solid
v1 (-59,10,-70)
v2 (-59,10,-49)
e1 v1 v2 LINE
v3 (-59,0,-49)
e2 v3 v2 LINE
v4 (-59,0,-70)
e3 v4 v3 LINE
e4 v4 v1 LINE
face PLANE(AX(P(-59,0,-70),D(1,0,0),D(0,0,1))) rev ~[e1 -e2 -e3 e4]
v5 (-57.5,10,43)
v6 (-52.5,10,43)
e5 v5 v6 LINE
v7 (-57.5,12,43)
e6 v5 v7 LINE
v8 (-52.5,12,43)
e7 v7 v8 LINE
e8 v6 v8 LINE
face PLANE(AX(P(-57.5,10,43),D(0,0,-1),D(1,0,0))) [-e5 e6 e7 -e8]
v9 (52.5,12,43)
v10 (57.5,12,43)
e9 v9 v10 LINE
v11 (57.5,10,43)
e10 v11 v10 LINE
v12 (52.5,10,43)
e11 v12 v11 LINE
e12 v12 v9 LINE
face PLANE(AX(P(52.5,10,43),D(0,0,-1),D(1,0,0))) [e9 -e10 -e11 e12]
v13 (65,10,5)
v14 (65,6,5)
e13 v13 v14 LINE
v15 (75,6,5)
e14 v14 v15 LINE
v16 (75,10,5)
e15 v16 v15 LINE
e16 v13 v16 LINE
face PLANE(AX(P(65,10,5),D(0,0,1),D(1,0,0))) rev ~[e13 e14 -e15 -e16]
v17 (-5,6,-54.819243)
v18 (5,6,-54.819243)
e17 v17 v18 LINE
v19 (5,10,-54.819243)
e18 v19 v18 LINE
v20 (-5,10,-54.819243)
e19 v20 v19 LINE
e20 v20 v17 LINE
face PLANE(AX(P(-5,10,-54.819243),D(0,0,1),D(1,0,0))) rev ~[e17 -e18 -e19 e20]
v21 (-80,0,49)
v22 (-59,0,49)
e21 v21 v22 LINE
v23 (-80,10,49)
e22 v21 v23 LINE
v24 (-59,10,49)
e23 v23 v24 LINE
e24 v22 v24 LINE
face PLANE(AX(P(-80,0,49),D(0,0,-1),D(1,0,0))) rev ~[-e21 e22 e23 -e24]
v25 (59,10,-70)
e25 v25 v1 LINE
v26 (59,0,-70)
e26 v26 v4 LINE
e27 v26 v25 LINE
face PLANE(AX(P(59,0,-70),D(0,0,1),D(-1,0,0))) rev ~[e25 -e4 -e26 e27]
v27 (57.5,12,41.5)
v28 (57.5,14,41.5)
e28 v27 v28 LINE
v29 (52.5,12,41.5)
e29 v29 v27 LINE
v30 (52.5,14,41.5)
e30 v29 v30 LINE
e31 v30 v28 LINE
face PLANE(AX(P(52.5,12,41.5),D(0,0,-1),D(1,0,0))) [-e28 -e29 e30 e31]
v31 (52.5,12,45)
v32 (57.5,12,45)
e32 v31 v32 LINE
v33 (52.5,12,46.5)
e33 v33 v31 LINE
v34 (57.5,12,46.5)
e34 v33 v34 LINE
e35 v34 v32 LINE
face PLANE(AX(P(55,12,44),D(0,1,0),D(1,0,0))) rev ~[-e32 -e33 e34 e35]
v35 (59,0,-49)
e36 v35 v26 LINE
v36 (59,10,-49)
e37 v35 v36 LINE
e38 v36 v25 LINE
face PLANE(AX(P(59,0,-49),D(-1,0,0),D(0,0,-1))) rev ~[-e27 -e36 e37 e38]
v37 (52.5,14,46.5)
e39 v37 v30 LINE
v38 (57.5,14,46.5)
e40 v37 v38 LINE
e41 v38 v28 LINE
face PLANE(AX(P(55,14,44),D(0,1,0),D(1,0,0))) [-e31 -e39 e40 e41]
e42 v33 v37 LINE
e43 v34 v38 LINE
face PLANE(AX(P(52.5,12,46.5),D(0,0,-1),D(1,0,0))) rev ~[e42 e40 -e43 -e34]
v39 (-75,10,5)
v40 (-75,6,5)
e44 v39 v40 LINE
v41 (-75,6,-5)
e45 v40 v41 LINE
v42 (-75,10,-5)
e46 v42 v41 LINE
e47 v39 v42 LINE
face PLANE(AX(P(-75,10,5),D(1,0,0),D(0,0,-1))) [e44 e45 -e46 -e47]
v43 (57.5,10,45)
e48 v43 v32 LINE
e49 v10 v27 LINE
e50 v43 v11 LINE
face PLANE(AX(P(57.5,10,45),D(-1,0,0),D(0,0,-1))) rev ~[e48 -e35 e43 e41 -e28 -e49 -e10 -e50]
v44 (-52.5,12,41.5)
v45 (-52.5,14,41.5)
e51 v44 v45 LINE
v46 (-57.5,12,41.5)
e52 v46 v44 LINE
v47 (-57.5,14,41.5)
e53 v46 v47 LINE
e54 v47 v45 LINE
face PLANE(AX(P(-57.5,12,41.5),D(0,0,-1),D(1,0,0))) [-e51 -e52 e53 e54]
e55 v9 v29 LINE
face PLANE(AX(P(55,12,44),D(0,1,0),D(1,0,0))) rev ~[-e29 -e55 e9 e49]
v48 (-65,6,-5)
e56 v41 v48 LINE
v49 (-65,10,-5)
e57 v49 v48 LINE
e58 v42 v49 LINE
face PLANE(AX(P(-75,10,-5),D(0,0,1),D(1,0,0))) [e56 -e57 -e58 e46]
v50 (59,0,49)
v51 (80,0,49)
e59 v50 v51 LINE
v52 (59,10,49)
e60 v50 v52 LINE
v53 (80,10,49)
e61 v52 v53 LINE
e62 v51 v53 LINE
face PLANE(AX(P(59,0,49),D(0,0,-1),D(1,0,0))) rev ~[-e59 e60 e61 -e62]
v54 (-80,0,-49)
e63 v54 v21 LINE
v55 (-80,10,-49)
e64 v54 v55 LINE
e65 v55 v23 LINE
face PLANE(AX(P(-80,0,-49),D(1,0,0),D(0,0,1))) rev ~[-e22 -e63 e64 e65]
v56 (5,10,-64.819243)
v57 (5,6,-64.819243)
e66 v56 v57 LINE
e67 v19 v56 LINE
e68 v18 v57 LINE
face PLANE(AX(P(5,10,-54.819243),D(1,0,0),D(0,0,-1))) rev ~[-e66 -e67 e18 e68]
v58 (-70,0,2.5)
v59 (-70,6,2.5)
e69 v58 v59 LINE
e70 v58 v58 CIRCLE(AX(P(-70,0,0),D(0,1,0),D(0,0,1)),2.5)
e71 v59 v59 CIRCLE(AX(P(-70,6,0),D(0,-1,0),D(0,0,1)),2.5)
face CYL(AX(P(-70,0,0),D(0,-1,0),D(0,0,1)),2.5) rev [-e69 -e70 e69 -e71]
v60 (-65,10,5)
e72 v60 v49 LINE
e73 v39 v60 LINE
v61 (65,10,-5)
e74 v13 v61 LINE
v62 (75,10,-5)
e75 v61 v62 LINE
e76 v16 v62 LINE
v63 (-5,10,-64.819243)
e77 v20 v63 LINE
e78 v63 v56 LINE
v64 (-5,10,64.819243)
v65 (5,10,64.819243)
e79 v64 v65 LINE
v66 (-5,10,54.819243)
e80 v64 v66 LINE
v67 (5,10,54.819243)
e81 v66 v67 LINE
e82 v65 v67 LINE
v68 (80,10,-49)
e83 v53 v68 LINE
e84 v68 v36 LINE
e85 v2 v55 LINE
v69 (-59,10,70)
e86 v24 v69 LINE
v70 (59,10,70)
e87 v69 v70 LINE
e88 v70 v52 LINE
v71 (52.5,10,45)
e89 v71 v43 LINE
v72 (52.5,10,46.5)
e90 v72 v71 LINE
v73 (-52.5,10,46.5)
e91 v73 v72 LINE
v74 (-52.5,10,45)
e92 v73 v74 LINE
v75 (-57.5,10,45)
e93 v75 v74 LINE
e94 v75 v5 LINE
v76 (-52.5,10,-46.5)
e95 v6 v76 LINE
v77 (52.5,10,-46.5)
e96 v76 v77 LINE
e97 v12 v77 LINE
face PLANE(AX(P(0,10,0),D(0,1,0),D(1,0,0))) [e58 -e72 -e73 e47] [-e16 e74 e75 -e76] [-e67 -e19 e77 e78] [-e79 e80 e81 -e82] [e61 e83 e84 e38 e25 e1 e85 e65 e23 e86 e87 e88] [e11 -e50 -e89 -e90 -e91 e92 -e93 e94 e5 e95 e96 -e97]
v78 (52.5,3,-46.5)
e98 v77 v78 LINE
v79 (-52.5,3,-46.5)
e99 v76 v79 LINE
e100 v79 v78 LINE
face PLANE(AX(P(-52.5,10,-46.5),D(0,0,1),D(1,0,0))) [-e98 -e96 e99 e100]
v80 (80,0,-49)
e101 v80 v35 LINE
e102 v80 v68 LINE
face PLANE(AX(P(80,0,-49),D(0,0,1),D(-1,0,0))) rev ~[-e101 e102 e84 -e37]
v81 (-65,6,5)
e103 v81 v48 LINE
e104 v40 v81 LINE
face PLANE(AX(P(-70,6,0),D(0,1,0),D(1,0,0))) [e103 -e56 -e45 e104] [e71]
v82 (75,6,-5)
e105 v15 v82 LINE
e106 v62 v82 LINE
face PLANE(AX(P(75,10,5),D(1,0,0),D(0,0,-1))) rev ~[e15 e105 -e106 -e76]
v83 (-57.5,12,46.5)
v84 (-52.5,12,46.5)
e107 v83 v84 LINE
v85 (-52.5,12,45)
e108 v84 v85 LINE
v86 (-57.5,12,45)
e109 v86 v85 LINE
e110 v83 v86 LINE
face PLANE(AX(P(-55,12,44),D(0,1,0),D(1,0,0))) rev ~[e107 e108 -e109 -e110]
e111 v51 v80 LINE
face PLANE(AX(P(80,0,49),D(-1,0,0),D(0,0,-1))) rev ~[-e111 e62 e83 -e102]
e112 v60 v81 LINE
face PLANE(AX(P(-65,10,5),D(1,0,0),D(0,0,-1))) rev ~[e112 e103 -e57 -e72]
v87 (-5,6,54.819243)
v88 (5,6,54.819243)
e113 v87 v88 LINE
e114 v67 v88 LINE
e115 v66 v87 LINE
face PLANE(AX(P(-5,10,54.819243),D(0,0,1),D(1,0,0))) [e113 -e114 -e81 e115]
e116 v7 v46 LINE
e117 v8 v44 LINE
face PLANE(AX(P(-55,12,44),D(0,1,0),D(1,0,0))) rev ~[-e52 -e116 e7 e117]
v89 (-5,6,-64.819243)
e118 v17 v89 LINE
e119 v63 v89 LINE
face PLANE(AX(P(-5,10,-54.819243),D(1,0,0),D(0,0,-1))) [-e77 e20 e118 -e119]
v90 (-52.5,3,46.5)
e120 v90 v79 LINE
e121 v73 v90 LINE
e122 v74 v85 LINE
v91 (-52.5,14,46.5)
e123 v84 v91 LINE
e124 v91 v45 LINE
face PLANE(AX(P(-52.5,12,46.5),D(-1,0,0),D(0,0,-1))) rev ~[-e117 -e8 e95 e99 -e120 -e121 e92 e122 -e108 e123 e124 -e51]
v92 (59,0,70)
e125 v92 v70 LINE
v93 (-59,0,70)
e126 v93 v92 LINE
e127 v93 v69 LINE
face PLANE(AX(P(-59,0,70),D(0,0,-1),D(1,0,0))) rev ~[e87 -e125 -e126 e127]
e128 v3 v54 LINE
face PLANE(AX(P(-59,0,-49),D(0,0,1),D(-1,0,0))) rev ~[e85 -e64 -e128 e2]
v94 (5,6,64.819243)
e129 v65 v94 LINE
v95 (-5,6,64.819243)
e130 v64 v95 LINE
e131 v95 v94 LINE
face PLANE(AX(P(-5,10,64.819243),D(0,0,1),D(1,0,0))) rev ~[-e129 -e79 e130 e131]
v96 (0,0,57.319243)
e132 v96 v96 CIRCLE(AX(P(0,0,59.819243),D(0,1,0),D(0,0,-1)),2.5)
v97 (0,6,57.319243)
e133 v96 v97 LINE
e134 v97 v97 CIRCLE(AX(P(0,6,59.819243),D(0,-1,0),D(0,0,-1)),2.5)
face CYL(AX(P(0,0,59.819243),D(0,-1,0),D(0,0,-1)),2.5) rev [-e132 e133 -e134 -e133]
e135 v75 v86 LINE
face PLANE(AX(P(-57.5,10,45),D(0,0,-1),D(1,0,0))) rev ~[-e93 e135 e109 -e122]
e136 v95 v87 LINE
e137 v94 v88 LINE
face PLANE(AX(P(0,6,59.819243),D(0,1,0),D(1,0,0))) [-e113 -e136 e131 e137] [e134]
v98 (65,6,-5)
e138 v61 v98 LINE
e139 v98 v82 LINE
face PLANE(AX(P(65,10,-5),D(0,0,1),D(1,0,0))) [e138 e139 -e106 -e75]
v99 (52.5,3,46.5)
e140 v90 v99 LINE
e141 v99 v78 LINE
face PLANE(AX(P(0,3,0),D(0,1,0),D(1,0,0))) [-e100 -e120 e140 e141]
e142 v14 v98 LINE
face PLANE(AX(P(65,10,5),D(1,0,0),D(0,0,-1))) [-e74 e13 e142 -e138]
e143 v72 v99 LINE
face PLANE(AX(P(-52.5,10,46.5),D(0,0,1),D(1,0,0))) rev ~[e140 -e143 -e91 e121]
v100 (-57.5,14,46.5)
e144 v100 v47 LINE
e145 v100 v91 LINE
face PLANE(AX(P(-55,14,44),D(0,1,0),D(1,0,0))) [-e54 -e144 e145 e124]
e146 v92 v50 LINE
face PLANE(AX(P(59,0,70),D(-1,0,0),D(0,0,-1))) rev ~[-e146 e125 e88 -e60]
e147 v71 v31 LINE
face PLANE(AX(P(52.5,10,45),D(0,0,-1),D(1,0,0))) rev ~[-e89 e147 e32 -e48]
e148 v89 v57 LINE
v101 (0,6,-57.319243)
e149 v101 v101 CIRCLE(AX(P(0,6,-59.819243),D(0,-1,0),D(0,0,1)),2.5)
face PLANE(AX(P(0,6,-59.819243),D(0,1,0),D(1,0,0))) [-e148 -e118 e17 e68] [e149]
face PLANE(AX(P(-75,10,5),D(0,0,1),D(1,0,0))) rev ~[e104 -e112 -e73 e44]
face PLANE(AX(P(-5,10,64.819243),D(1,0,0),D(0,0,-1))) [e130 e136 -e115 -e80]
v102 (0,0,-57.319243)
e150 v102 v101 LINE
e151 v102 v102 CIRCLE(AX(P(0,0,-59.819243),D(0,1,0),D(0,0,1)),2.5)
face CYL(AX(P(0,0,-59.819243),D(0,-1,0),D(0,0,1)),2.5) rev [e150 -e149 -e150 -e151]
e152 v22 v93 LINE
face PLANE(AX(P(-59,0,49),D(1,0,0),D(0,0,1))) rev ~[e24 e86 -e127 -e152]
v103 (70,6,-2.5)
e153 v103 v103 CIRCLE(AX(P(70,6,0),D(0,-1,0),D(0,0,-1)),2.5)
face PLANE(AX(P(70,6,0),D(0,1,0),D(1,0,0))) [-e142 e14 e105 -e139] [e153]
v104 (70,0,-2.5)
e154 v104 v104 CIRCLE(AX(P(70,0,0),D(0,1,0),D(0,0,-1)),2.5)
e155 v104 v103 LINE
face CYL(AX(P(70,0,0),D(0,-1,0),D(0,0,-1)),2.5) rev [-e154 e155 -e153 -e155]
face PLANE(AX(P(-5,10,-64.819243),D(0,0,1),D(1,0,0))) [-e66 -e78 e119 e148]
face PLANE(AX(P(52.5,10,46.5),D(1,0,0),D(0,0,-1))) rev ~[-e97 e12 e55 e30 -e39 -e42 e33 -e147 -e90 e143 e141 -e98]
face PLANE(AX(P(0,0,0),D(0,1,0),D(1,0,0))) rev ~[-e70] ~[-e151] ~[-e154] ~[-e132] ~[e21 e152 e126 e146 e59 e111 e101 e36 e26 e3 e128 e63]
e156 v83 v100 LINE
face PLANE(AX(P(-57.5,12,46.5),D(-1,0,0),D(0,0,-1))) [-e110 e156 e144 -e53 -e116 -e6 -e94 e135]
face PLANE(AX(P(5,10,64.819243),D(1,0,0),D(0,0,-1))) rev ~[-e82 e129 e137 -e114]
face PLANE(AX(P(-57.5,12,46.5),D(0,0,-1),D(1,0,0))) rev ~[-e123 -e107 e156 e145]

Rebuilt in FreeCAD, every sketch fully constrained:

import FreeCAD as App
import Part
import Sketcher
Q = App.Units.Quantity

doc = App.newDocument("Part")
body = doc.addObject("PartDesign::Body", "Body")

# Sketch on XZ plane
sketch1 = doc.addObject("Sketcher::SketchObject", "Sketch")
body.addObject(sketch1)
sketch1.AttachmentSupport = (doc.XZ_Plane, [""])
sketch1.MapMode = "FlatFace"
sketch1.addGeometry([
    Part.LineSegment(App.Vector(-59, -70, 0), App.Vector(-59, -49, 0)),  # 0
    Part.LineSegment(App.Vector(-59, -49, 0), App.Vector(-80, -49, 0)),  # 1
    Part.LineSegment(App.Vector(-80, -49, 0), App.Vector(-80, 49, 0)),  # 2
    Part.LineSegment(App.Vector(-80, 49, 0), App.Vector(-59, 49, 0)),  # 3
    Part.LineSegment(App.Vector(-59, 49, 0), App.Vector(-59, 70, 0)),  # 4
    Part.LineSegment(App.Vector(-59, 70, 0), App.Vector(59, 70, 0)),  # 5
    Part.LineSegment(App.Vector(59, 70, 0), App.Vector(59, 49, 0)),  # 6
    Part.LineSegment(App.Vector(59, 49, 0), App.Vector(80, 49, 0)),  # 7
    Part.LineSegment(App.Vector(80, 49, 0), App.Vector(80, -49, 0)),  # 8
    Part.LineSegment(App.Vector(80, -49, 0), App.Vector(59, -49, 0)),  # 9
    Part.LineSegment(App.Vector(59, -49, 0), App.Vector(59, -70, 0)),  # 10
    Part.LineSegment(App.Vector(59, -70, 0), App.Vector(-59, -70, 0)),  # 11
    Part.Circle(App.Vector(0, 59.8, 0), App.Vector(0, 0, 1), 2.5),  # 12
    Part.Circle(App.Vector(-70, 0, 0), App.Vector(0, 0, 1), 2.5),  # 13
    Part.Circle(App.Vector(70, 0, 0), App.Vector(0, 0, 1), 2.5),  # 14
    Part.Circle(App.Vector(0, -59.8, 0), App.Vector(0, 0, 1), 2.5),  # 15
], False)
sketch1.addConstraint([
    Sketcher.Constraint("Coincident", 0, 2, 1, 1),
    Sketcher.Constraint("Coincident", 1, 2, 2, 1),
    Sketcher.Constraint("Coincident", 2, 2, 3, 1),
    Sketcher.Constraint("Coincident", 3, 2, 4, 1),
    Sketcher.Constraint("Coincident", 4, 2, 5, 1),
    Sketcher.Constraint("Coincident", 5, 2, 6, 1),
    Sketcher.Constraint("Coincident", 6, 2, 7, 1),
    Sketcher.Constraint("Coincident", 7, 2, 8, 1),
    Sketcher.Constraint("Coincident", 8, 2, 9, 1),
    Sketcher.Constraint("Coincident", 9, 2, 10, 1),
    Sketcher.Constraint("Coincident", 10, 2, 11, 1),
    Sketcher.Constraint("Coincident", 11, 2, 0, 1),
    Sketcher.Constraint("Vertical", 0),
    Sketcher.Constraint("Horizontal", 1),
    Sketcher.Constraint("Vertical", 2),
    Sketcher.Constraint("Horizontal", 3),
    Sketcher.Constraint("Vertical", 4),
    Sketcher.Constraint("Horizontal", 5),
    Sketcher.Constraint("Vertical", 6),
    Sketcher.Constraint("Horizontal", 7),
    Sketcher.Constraint("Vertical", 8),
    Sketcher.Constraint("Horizontal", 9),
    Sketcher.Constraint("Vertical", 10),
    Sketcher.Constraint("Horizontal", 11),
    Sketcher.Constraint("Equal", 12, 13),
    Sketcher.Constraint("Equal", 13, 14),
    Sketcher.Constraint("Equal", 14, 15),
    Sketcher.Constraint("Symmetric", 13, 3, 14, 3, -1, 1),
    Sketcher.Constraint("Symmetric", 12, 3, 15, 3, -1, 1),
    Sketcher.Constraint("Symmetric", 0, 2, 6, 2, -1, 1),
    Sketcher.Constraint("Symmetric", 2, 2, 8, 2, -1, 1),
    Sketcher.Constraint("Symmetric", 4, 2, 10, 2, -1, 1),
    Sketcher.Constraint("Symmetric", 3, 2, 6, 2, -2),
    Sketcher.Constraint("PointOnObject", 12, 3, -2),
    Sketcher.Constraint("PointOnObject", 13, 3, -1),
    Sketcher.Constraint("Equal", 9, 0),
    Sketcher.Constraint("Diameter", 12, Q("5 mm")),
    Sketcher.Constraint("DistanceX", 1, 2, 1, 1, Q("21 mm")),
    Sketcher.Constraint("DistanceX", 5, 1, 5, 2, Q("118 mm")),
    Sketcher.Constraint("DistanceY", 2, 1, 2, 2, Q("98 mm")),
    Sketcher.Constraint("DistanceX", 13, 3, -1, 1, Q("70 mm")),
    Sketcher.Constraint("DistanceY", -1, 1, 12, 3, Q("59.819243 mm")),
])
pad1 = doc.addObject("PartDesign::Pad", "Pad")
body.addObject(pad1)
pad1.Profile = sketch1
pad1.Length = 10
pad1.Reversed = True

# Sketch on XZ plane
sketch2 = doc.addObject("Sketcher::SketchObject", "Sketch001")
body.addObject(sketch2)
sketch2.AttachmentSupport = (doc.XZ_Plane, [""])
sketch2.MapMode = "FlatFace"
sketch2.AttachmentOffset = App.Placement(App.Vector(0, 0, -10), App.Rotation())
sketch2.addGeometry([
    Part.LineSegment(App.Vector(-5, -65, 0), App.Vector(-5, -55, 0)),  # 0
    Part.LineSegment(App.Vector(-5, -55, 0), App.Vector(5, -55, 0)),  # 1
    Part.LineSegment(App.Vector(5, -55, 0), App.Vector(5, -65, 0)),  # 2
    Part.LineSegment(App.Vector(5, -65, 0), App.Vector(-5, -65, 0)),  # 3
    Part.LineSegment(App.Vector(-75, -5, 0), App.Vector(-75, 5, 0)),  # 4
    Part.LineSegment(App.Vector(-75, 5, 0), App.Vector(-65, 5, 0)),  # 5
    Part.LineSegment(App.Vector(-65, 5, 0), App.Vector(-65, -5, 0)),  # 6
    Part.LineSegment(App.Vector(-65, -5, 0), App.Vector(-75, -5, 0)),  # 7
    Part.LineSegment(App.Vector(65, -5, 0), App.Vector(65, 5, 0)),  # 8
    Part.LineSegment(App.Vector(65, 5, 0), App.Vector(75, 5, 0)),  # 9
    Part.LineSegment(App.Vector(75, 5, 0), App.Vector(75, -5, 0)),  # 10
    Part.LineSegment(App.Vector(75, -5, 0), App.Vector(65, -5, 0)),  # 11
    Part.LineSegment(App.Vector(-5, 55, 0), App.Vector(-5, 65, 0)),  # 12
    Part.LineSegment(App.Vector(-5, 65, 0), App.Vector(5, 65, 0)),  # 13
    Part.LineSegment(App.Vector(5, 65, 0), App.Vector(5, 55, 0)),  # 14
    Part.LineSegment(App.Vector(5, 55, 0), App.Vector(-5, 55, 0)),  # 15
], False)
sketch2.addConstraint([
    Sketcher.Constraint("Coincident", 0, 2, 1, 1),
    Sketcher.Constraint("Coincident", 1, 2, 2, 1),
    Sketcher.Constraint("Coincident", 2, 2, 3, 1),
    Sketcher.Constraint("Coincident", 3, 2, 0, 1),
    Sketcher.Constraint("Coincident", 4, 2, 5, 1),
    Sketcher.Constraint("Coincident", 5, 2, 6, 1),
    Sketcher.Constraint("Coincident", 6, 2, 7, 1),
    Sketcher.Constraint("Coincident", 7, 2, 4, 1),
    Sketcher.Constraint("Coincident", 8, 2, 9, 1),
    Sketcher.Constraint("Coincident", 9, 2, 10, 1),
    Sketcher.Constraint("Coincident", 10, 2, 11, 1),
    Sketcher.Constraint("Coincident", 11, 2, 8, 1),
    Sketcher.Constraint("Coincident", 12, 2, 13, 1),
    Sketcher.Constraint("Coincident", 13, 2, 14, 1),
    Sketcher.Constraint("Coincident", 14, 2, 15, 1),
    Sketcher.Constraint("Coincident", 15, 2, 12, 1),
    Sketcher.Constraint("Vertical", 0),
    Sketcher.Constraint("Horizontal", 1),
    Sketcher.Constraint("Vertical", 2),
    Sketcher.Constraint("Horizontal", 3),
    Sketcher.Constraint("Vertical", 4),
    Sketcher.Constraint("Horizontal", 5),
    Sketcher.Constraint("Vertical", 6),
    Sketcher.Constraint("Horizontal", 7),
    Sketcher.Constraint("Vertical", 8),
    Sketcher.Constraint("Horizontal", 9),
    Sketcher.Constraint("Vertical", 10),
    Sketcher.Constraint("Horizontal", 11),
    Sketcher.Constraint("Vertical", 12),
    Sketcher.Constraint("Horizontal", 13),
    Sketcher.Constraint("Vertical", 14),
    Sketcher.Constraint("Horizontal", 15),
    Sketcher.Constraint("Symmetric", 6, 2, 8, 2, -1, 1),
    Sketcher.Constraint("Symmetric", 4, 2, 10, 2, -1, 1),
    Sketcher.Constraint("Symmetric", 2, 2, 12, 2, -1, 1),
    Sketcher.Constraint("Symmetric", 0, 2, 14, 2, -1, 1),
    Sketcher.Constraint("Horizontal", 5, 2, 8, 2),
    Sketcher.Constraint("Vertical", 3, 2, 12, 2),
    Sketcher.Constraint("Equal", 3, 5),
    Sketcher.Constraint("Equal", 15, 0),
    Sketcher.Constraint("Equal", 2, 4),
    Sketcher.Constraint("DistanceX", 1, 1, 1, 2, Q("10 mm")),
    Sketcher.Constraint("DistanceX", 4, 2, -1, 1, Q("75 mm")),
    Sketcher.Constraint("DistanceY", 0, 2, -1, 1, Q("54.819243 mm")),
])
pocket1 = doc.addObject("PartDesign::Pocket", "Pocket")
body.addObject(pocket1)
pocket1.Profile = sketch2
pocket1.Length = 4
pocket1.Reversed = True

# Sketch on XZ plane
sketch3 = doc.addObject("Sketcher::SketchObject", "Sketch002")
body.addObject(sketch3)
sketch3.AttachmentSupport = (doc.XZ_Plane, [""])
sketch3.MapMode = "FlatFace"
sketch3.AttachmentOffset = App.Placement(App.Vector(0, 0, -10), App.Rotation())
sketch3.addGeometry([
    Part.LineSegment(App.Vector(-52, -46, 0), App.Vector(-52, 46, 0)),
    Part.LineSegment(App.Vector(-52, 46, 0), App.Vector(52, 46, 0)),
    Part.LineSegment(App.Vector(52, 46, 0), App.Vector(52, -46, 0)),
    Part.LineSegment(App.Vector(52, -46, 0), App.Vector(-52, -46, 0)),
], False)
sketch3.addConstraint([
    Sketcher.Constraint("Coincident", 0, 2, 1, 1),
    Sketcher.Constraint("Coincident", 1, 2, 2, 1),
    Sketcher.Constraint("Coincident", 2, 2, 3, 1),
    Sketcher.Constraint("Coincident", 3, 2, 0, 1),
    Sketcher.Constraint("Vertical", 0),
    Sketcher.Constraint("Horizontal", 1),
    Sketcher.Constraint("Vertical", 2),
    Sketcher.Constraint("Horizontal", 3),
    Sketcher.Constraint("Symmetric", 0, 2, 2, 2, -1, 1),
    Sketcher.Constraint("DistanceX", 1, 1, 1, 2, Q("105 mm")),
    Sketcher.Constraint("DistanceY", 0, 1, 0, 2, Q("93 mm")),
])
pocket2 = doc.addObject("PartDesign::Pocket", "Pocket001")
body.addObject(pocket2)
pocket2.Profile = sketch3
pocket2.Length = 7
pocket2.Reversed = True

# Sketch on XZ plane
sketch4 = doc.addObject("Sketcher::SketchObject", "Sketch003")
body.addObject(sketch4)
sketch4.AttachmentSupport = (doc.XZ_Plane, [""])
sketch4.MapMode = "FlatFace"
sketch4.AttachmentOffset = App.Placement(App.Vector(0, 0, -10), App.Rotation())
sketch4.addGeometry([
    Part.LineSegment(App.Vector(-57.5, 43, 0), App.Vector(-57.5, 45, 0)),  # 0
    Part.LineSegment(App.Vector(-57.5, 45, 0), App.Vector(-52.5, 45, 0)),  # 1
    Part.LineSegment(App.Vector(-52.5, 45, 0), App.Vector(-52.5, 43, 0)),  # 2
    Part.LineSegment(App.Vector(-52.5, 43, 0), App.Vector(-57.5, 43, 0)),  # 3
    Part.LineSegment(App.Vector(52.5, 43, 0), App.Vector(52.5, 45, 0)),  # 4
    Part.LineSegment(App.Vector(52.5, 45, 0), App.Vector(57.5, 45, 0)),  # 5
    Part.LineSegment(App.Vector(57.5, 45, 0), App.Vector(57.5, 43, 0)),  # 6
    Part.LineSegment(App.Vector(57.5, 43, 0), App.Vector(52.5, 43, 0)),  # 7
], False)
sketch4.addConstraint([
    Sketcher.Constraint("Coincident", 0, 2, 1, 1),
    Sketcher.Constraint("Coincident", 1, 2, 2, 1),
    Sketcher.Constraint("Coincident", 2, 2, 3, 1),
    Sketcher.Constraint("Coincident", 3, 2, 0, 1),
    Sketcher.Constraint("Coincident", 4, 2, 5, 1),
    Sketcher.Constraint("Coincident", 5, 2, 6, 1),
    Sketcher.Constraint("Coincident", 6, 2, 7, 1),
    Sketcher.Constraint("Coincident", 7, 2, 4, 1),
    Sketcher.Constraint("Vertical", 0),
    Sketcher.Constraint("Horizontal", 1),
    Sketcher.Constraint("Vertical", 2),
    Sketcher.Constraint("Horizontal", 3),
    Sketcher.Constraint("Vertical", 4),
    Sketcher.Constraint("Horizontal", 5),
    Sketcher.Constraint("Vertical", 6),
    Sketcher.Constraint("Horizontal", 7),
    Sketcher.Constraint("Symmetric", 1, 2, 4, 2, -2),
    Sketcher.Constraint("Symmetric", 3, 2, 6, 2, -2),
    Sketcher.Constraint("DistanceX", 1, 1, 1, 2, Q("5 mm")),
    Sketcher.Constraint("DistanceY", 0, 1, 0, 2, Q("2 mm")),
    Sketcher.Constraint("DistanceY", -1, 1, 0, 2, Q("45 mm")),
    Sketcher.Constraint("DistanceX", 1, 2, 4, 2, Q("105 mm")),
])
pad2 = doc.addObject("PartDesign::Pad", "Pad001")
body.addObject(pad2)
pad2.Profile = sketch4
pad2.Length = 2
pad2.Reversed = True

# Sketch on XZ plane
sketch5 = doc.addObject("Sketcher::SketchObject", "Sketch004")
body.addObject(sketch5)
sketch5.AttachmentSupport = (doc.XZ_Plane, [""])
sketch5.MapMode = "FlatFace"
sketch5.AttachmentOffset = App.Placement(App.Vector(0, 0, -12), App.Rotation())
sketch5.addGeometry([
    Part.LineSegment(App.Vector(-58, 42, 0), App.Vector(-58, 46, 0)),  # 0
    Part.LineSegment(App.Vector(-58, 46, 0), App.Vector(-52, 46, 0)),  # 1
    Part.LineSegment(App.Vector(-52, 46, 0), App.Vector(-52, 42, 0)),  # 2
    Part.LineSegment(App.Vector(-52, 42, 0), App.Vector(-58, 42, 0)),  # 3
    Part.LineSegment(App.Vector(52, 42, 0), App.Vector(52, 46, 0)),  # 4
    Part.LineSegment(App.Vector(52, 46, 0), App.Vector(58, 46, 0)),  # 5
    Part.LineSegment(App.Vector(58, 46, 0), App.Vector(58, 42, 0)),  # 6
    Part.LineSegment(App.Vector(58, 42, 0), App.Vector(52, 42, 0)),  # 7
], False)
sketch5.addConstraint([
    Sketcher.Constraint("Coincident", 0, 2, 1, 1),
    Sketcher.Constraint("Coincident", 1, 2, 2, 1),
    Sketcher.Constraint("Coincident", 2, 2, 3, 1),
    Sketcher.Constraint("Coincident", 3, 2, 0, 1),
    Sketcher.Constraint("Coincident", 4, 2, 5, 1),
    Sketcher.Constraint("Coincident", 5, 2, 6, 1),
    Sketcher.Constraint("Coincident", 6, 2, 7, 1),
    Sketcher.Constraint("Coincident", 7, 2, 4, 1),
    Sketcher.Constraint("Vertical", 0),
    Sketcher.Constraint("Horizontal", 1),
    Sketcher.Constraint("Vertical", 2),
    Sketcher.Constraint("Horizontal", 3),
    Sketcher.Constraint("Vertical", 4),
    Sketcher.Constraint("Horizontal", 5),
    Sketcher.Constraint("Vertical", 6),
    Sketcher.Constraint("Horizontal", 7),
    Sketcher.Constraint("Symmetric", 1, 2, 4, 2, -2),
    Sketcher.Constraint("Symmetric", 3, 2, 6, 2, -2),
    Sketcher.Constraint("Equal", 7, 0),
    Sketcher.Constraint("DistanceX", 1, 1, 1, 2, Q("5 mm")),
    Sketcher.Constraint("DistanceX", 1, 2, 4, 2, Q("105 mm")),
    Sketcher.Constraint("DistanceY", -1, 1, 0, 2, Q("46.5 mm")),
])
pad3 = doc.addObject("PartDesign::Pad", "Pad002")
body.addObject(pad3)
pad3.Profile = sketch5
pad3.Length = 2
pad3.Reversed = True

doc.recompute()
